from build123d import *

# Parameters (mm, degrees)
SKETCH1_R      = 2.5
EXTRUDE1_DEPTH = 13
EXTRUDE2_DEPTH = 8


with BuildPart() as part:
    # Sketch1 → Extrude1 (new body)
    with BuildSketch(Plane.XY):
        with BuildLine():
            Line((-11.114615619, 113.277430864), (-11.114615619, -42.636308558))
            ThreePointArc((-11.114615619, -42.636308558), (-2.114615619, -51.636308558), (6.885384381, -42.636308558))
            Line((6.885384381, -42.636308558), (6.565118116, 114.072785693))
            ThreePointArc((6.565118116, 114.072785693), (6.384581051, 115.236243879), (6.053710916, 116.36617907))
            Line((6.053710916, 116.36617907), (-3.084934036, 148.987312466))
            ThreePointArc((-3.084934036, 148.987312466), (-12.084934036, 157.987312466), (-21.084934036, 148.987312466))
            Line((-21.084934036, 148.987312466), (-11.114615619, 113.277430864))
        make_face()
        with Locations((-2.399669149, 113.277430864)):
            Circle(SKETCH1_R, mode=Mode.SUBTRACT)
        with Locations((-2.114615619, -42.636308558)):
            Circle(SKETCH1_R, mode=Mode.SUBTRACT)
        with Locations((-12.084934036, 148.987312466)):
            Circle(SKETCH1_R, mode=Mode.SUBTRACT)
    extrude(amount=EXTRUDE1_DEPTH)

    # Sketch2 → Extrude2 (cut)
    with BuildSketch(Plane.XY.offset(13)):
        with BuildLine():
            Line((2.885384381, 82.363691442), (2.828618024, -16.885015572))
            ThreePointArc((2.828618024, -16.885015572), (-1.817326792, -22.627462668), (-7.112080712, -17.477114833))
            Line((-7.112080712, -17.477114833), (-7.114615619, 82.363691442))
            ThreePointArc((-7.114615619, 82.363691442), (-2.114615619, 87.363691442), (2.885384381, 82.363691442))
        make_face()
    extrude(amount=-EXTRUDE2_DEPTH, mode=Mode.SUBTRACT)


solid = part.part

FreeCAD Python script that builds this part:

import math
import FreeCAD as App
import Part
import Sketcher
Q = App.Units.Quantity

doc = App.newDocument("Part")
body = doc.addObject("PartDesign::Body", "Body")

# Sketch on XY plane
sketch1 = body.newObject("Sketcher::SketchObject", "Sketch")
sketch1.AttachmentSupport = (doc.getObject("XY_Plane"), [""])
sketch1.MapMode = "FlatFace"
sketch1.addGeometry([
    Part.LineSegment(App.Vector(-11.114616, 113.277431, 0), App.Vector(-11.114616, -42.636309, 0)),  # 0
    Part.ArcOfCircle(Part.Circle(App.Vector(-2.114616, -42.636309, 0), App.Vector(0, 0, 1), 9), math.radians(180), math.radians(360)),  # 1
    Part.LineSegment(App.Vector(6.885384, -42.636309, 0), App.Vector(6.565118, 114.072786, 0)),  # 2
    Part.ArcOfCircle(Part.Circle(App.Vector(-2.399669, 113.277431, 0), App.Vector(0, 0, 1), 9), math.radians(5.07), math.radians(20.071605)),  # 3
    Part.LineSegment(App.Vector(6.053711, 116.366179, 0), App.Vector(-3.084934, 148.987312, 0)),  # 4
    Part.ArcOfCircle(Part.Circle(App.Vector(-12.084934, 148.987312, 0), App.Vector(0, 0, 1), 9), math.radians(0), math.radians(180)),  # 5
    Part.LineSegment(App.Vector(-21.084934, 148.987312, 0), App.Vector(-11.114616, 113.277431, 0)),  # 6
    Part.Circle(App.Vector(-2.114616, -42.636309, 0), App.Vector(0, 0, 1), 2.5),  # 7
    Part.Circle(App.Vector(-12.084934, 148.987312, 0), App.Vector(0, 0, 1), 2.5),  # 8
    Part.Circle(App.Vector(-2.399669, 113.277431, 0), App.Vector(0, 0, 1), 2.5),  # 9
], False)
sketch1.addConstraint([
    Sketcher.Constraint("Tangent", 0, 2, 1, 1),
    Sketcher.Constraint("Coincident", 1, 2, 2, 1),
    Sketcher.Constraint("Coincident", 2, 2, 3, 1),
    Sketcher.Constraint("Coincident", 3, 2, 4, 1),
    Sketcher.Constraint("Coincident", 4, 2, 5, 1),
    Sketcher.Constraint("Coincident", 5, 2, 6, 1),
    Sketcher.Constraint("Coincident", 6, 2, 0, 1),
    Sketcher.Constraint("Vertical", 0),
    Sketcher.Constraint("Coincident", 7, 3, 1, 3),
    Sketcher.Constraint("Coincident", 8, 3, 5, 3),
    Sketcher.Constraint("Coincident", 9, 3, 3, 3),
    Sketcher.Constraint("Equal", 1, 3),
    Sketcher.Constraint("Equal", 3, 5),
    Sketcher.Constraint("Equal", 7, 8),
    Sketcher.Constraint("Equal", 8, 9),
    Sketcher.Constraint("Horizontal", 0, 2, 1, 2),
    Sketcher.Constraint("Horizontal", 8, 3, 4, 2),
    Sketcher.Constraint("Horizontal", 4, 2, 5, 2),
    Sketcher.Constraint("Horizontal", 9, 3, 6, 2),
    Sketcher.Constraint("Diameter", 7, Q("5 mm")),
    Sketcher.Constraint("Radius", 1, Q("9 mm")),
    Sketcher.Constraint("DistanceY", 0, 2, 0, 1, Q("155.913739 mm")),
    Sketcher.Constraint("Distance", 2, Q("156.709422 mm")),
    Sketcher.Constraint("Distance", 4, Q("33.87703 mm")),
    Sketcher.Constraint("DistanceY", 1, 3, -1, 1, Q("42.636309 mm")),
    Sketcher.Constraint("DistanceX", 3, 3, -1, 1, Q("2.399669 mm")),
    Sketcher.Constraint("DistanceX", -1, 1, 3, 2, Q("6.053711 mm")),
    Sketcher.Constraint("DistanceY", 3, 3, 5, 3, Q("35.709882 mm")),
    Sketcher.Constraint("DistanceX", 5, 3, 1, 3, Q("9.970318 mm")),
])
pad1 = body.newObject("PartDesign::Pad", "Pad")
pad1.Profile = sketch1
pad1.Length = 13

# Sketch on XY plane
sketch2 = body.newObject("Sketcher::SketchObject", "Sketch001")
sketch2.AttachmentSupport = (doc.getObject("XY_Plane"), [""])
sketch2.MapMode = "FlatFace"
sketch2.AttachmentOffset = App.Placement(App.Vector(0, 0, 13), App.Rotation())
sketch2.addGeometry([
    Part.LineSegment(App.Vector(2.828618, -16.885016, 0), App.Vector(2.885384, 82.363691, 0)),
    Part.ArcOfCircle(Part.Circle(App.Vector(-2.114616, 82.363691, 0), App.Vector(0, 0, 1), 5), math.radians(0), math.radians(180)),
    Part.LineSegment(App.Vector(-7.114616, 82.363691, 0), App.Vector(-7.112081, -17.477115, 0)),
    Part.ArcOfCircle(Part.Circle(App.Vector(-2.114616, -17.636309, 0), App.Vector(0, 0, 1), 5), math.radians(178.175466), math.radians(368.641913)),
], False)
sketch2.addConstraint([
    Sketcher.Constraint("Coincident", 0, 2, 1, 1),
    Sketcher.Constraint("Coincident", 1, 2, 2, 1),
    Sketcher.Constraint("Coincident", 2, 2, 3, 1),
    Sketcher.Constraint("Coincident", 3, 2, 0, 1),
    Sketcher.Constraint("Equal", 1, 3),
    Sketcher.Constraint("Horizontal", 1, 3, 0, 2),
    Sketcher.Constraint("Horizontal", 0, 2, 1, 2),
    Sketcher.Constraint("Vertical", 1, 3, 3, 3),
    Sketcher.Constraint("Radius", 1, Q("5 mm")),
    Sketcher.Constraint("DistanceY", 3, 3, 1, 3, Q("100 mm")),
    Sketcher.Constraint("DistanceX", 2, 2, 3, 2, Q("9.940699 mm")),
    Sketcher.Constraint("DistanceY", 2, 2, 3, 2, Q("0.592099 mm")),
    Sketcher.Constraint("DistanceY", -1, 1, 1, 3, Q("82.363691 mm")),
    Sketcher.Constraint("DistanceX", 2, 2, -1, 1, Q("7.112081 mm")),
])
pocket1 = body.newObject("PartDesign::Pocket", "Pocket")
pocket1.Profile = sketch2
pocket1.Length = 8

doc.recompute()
